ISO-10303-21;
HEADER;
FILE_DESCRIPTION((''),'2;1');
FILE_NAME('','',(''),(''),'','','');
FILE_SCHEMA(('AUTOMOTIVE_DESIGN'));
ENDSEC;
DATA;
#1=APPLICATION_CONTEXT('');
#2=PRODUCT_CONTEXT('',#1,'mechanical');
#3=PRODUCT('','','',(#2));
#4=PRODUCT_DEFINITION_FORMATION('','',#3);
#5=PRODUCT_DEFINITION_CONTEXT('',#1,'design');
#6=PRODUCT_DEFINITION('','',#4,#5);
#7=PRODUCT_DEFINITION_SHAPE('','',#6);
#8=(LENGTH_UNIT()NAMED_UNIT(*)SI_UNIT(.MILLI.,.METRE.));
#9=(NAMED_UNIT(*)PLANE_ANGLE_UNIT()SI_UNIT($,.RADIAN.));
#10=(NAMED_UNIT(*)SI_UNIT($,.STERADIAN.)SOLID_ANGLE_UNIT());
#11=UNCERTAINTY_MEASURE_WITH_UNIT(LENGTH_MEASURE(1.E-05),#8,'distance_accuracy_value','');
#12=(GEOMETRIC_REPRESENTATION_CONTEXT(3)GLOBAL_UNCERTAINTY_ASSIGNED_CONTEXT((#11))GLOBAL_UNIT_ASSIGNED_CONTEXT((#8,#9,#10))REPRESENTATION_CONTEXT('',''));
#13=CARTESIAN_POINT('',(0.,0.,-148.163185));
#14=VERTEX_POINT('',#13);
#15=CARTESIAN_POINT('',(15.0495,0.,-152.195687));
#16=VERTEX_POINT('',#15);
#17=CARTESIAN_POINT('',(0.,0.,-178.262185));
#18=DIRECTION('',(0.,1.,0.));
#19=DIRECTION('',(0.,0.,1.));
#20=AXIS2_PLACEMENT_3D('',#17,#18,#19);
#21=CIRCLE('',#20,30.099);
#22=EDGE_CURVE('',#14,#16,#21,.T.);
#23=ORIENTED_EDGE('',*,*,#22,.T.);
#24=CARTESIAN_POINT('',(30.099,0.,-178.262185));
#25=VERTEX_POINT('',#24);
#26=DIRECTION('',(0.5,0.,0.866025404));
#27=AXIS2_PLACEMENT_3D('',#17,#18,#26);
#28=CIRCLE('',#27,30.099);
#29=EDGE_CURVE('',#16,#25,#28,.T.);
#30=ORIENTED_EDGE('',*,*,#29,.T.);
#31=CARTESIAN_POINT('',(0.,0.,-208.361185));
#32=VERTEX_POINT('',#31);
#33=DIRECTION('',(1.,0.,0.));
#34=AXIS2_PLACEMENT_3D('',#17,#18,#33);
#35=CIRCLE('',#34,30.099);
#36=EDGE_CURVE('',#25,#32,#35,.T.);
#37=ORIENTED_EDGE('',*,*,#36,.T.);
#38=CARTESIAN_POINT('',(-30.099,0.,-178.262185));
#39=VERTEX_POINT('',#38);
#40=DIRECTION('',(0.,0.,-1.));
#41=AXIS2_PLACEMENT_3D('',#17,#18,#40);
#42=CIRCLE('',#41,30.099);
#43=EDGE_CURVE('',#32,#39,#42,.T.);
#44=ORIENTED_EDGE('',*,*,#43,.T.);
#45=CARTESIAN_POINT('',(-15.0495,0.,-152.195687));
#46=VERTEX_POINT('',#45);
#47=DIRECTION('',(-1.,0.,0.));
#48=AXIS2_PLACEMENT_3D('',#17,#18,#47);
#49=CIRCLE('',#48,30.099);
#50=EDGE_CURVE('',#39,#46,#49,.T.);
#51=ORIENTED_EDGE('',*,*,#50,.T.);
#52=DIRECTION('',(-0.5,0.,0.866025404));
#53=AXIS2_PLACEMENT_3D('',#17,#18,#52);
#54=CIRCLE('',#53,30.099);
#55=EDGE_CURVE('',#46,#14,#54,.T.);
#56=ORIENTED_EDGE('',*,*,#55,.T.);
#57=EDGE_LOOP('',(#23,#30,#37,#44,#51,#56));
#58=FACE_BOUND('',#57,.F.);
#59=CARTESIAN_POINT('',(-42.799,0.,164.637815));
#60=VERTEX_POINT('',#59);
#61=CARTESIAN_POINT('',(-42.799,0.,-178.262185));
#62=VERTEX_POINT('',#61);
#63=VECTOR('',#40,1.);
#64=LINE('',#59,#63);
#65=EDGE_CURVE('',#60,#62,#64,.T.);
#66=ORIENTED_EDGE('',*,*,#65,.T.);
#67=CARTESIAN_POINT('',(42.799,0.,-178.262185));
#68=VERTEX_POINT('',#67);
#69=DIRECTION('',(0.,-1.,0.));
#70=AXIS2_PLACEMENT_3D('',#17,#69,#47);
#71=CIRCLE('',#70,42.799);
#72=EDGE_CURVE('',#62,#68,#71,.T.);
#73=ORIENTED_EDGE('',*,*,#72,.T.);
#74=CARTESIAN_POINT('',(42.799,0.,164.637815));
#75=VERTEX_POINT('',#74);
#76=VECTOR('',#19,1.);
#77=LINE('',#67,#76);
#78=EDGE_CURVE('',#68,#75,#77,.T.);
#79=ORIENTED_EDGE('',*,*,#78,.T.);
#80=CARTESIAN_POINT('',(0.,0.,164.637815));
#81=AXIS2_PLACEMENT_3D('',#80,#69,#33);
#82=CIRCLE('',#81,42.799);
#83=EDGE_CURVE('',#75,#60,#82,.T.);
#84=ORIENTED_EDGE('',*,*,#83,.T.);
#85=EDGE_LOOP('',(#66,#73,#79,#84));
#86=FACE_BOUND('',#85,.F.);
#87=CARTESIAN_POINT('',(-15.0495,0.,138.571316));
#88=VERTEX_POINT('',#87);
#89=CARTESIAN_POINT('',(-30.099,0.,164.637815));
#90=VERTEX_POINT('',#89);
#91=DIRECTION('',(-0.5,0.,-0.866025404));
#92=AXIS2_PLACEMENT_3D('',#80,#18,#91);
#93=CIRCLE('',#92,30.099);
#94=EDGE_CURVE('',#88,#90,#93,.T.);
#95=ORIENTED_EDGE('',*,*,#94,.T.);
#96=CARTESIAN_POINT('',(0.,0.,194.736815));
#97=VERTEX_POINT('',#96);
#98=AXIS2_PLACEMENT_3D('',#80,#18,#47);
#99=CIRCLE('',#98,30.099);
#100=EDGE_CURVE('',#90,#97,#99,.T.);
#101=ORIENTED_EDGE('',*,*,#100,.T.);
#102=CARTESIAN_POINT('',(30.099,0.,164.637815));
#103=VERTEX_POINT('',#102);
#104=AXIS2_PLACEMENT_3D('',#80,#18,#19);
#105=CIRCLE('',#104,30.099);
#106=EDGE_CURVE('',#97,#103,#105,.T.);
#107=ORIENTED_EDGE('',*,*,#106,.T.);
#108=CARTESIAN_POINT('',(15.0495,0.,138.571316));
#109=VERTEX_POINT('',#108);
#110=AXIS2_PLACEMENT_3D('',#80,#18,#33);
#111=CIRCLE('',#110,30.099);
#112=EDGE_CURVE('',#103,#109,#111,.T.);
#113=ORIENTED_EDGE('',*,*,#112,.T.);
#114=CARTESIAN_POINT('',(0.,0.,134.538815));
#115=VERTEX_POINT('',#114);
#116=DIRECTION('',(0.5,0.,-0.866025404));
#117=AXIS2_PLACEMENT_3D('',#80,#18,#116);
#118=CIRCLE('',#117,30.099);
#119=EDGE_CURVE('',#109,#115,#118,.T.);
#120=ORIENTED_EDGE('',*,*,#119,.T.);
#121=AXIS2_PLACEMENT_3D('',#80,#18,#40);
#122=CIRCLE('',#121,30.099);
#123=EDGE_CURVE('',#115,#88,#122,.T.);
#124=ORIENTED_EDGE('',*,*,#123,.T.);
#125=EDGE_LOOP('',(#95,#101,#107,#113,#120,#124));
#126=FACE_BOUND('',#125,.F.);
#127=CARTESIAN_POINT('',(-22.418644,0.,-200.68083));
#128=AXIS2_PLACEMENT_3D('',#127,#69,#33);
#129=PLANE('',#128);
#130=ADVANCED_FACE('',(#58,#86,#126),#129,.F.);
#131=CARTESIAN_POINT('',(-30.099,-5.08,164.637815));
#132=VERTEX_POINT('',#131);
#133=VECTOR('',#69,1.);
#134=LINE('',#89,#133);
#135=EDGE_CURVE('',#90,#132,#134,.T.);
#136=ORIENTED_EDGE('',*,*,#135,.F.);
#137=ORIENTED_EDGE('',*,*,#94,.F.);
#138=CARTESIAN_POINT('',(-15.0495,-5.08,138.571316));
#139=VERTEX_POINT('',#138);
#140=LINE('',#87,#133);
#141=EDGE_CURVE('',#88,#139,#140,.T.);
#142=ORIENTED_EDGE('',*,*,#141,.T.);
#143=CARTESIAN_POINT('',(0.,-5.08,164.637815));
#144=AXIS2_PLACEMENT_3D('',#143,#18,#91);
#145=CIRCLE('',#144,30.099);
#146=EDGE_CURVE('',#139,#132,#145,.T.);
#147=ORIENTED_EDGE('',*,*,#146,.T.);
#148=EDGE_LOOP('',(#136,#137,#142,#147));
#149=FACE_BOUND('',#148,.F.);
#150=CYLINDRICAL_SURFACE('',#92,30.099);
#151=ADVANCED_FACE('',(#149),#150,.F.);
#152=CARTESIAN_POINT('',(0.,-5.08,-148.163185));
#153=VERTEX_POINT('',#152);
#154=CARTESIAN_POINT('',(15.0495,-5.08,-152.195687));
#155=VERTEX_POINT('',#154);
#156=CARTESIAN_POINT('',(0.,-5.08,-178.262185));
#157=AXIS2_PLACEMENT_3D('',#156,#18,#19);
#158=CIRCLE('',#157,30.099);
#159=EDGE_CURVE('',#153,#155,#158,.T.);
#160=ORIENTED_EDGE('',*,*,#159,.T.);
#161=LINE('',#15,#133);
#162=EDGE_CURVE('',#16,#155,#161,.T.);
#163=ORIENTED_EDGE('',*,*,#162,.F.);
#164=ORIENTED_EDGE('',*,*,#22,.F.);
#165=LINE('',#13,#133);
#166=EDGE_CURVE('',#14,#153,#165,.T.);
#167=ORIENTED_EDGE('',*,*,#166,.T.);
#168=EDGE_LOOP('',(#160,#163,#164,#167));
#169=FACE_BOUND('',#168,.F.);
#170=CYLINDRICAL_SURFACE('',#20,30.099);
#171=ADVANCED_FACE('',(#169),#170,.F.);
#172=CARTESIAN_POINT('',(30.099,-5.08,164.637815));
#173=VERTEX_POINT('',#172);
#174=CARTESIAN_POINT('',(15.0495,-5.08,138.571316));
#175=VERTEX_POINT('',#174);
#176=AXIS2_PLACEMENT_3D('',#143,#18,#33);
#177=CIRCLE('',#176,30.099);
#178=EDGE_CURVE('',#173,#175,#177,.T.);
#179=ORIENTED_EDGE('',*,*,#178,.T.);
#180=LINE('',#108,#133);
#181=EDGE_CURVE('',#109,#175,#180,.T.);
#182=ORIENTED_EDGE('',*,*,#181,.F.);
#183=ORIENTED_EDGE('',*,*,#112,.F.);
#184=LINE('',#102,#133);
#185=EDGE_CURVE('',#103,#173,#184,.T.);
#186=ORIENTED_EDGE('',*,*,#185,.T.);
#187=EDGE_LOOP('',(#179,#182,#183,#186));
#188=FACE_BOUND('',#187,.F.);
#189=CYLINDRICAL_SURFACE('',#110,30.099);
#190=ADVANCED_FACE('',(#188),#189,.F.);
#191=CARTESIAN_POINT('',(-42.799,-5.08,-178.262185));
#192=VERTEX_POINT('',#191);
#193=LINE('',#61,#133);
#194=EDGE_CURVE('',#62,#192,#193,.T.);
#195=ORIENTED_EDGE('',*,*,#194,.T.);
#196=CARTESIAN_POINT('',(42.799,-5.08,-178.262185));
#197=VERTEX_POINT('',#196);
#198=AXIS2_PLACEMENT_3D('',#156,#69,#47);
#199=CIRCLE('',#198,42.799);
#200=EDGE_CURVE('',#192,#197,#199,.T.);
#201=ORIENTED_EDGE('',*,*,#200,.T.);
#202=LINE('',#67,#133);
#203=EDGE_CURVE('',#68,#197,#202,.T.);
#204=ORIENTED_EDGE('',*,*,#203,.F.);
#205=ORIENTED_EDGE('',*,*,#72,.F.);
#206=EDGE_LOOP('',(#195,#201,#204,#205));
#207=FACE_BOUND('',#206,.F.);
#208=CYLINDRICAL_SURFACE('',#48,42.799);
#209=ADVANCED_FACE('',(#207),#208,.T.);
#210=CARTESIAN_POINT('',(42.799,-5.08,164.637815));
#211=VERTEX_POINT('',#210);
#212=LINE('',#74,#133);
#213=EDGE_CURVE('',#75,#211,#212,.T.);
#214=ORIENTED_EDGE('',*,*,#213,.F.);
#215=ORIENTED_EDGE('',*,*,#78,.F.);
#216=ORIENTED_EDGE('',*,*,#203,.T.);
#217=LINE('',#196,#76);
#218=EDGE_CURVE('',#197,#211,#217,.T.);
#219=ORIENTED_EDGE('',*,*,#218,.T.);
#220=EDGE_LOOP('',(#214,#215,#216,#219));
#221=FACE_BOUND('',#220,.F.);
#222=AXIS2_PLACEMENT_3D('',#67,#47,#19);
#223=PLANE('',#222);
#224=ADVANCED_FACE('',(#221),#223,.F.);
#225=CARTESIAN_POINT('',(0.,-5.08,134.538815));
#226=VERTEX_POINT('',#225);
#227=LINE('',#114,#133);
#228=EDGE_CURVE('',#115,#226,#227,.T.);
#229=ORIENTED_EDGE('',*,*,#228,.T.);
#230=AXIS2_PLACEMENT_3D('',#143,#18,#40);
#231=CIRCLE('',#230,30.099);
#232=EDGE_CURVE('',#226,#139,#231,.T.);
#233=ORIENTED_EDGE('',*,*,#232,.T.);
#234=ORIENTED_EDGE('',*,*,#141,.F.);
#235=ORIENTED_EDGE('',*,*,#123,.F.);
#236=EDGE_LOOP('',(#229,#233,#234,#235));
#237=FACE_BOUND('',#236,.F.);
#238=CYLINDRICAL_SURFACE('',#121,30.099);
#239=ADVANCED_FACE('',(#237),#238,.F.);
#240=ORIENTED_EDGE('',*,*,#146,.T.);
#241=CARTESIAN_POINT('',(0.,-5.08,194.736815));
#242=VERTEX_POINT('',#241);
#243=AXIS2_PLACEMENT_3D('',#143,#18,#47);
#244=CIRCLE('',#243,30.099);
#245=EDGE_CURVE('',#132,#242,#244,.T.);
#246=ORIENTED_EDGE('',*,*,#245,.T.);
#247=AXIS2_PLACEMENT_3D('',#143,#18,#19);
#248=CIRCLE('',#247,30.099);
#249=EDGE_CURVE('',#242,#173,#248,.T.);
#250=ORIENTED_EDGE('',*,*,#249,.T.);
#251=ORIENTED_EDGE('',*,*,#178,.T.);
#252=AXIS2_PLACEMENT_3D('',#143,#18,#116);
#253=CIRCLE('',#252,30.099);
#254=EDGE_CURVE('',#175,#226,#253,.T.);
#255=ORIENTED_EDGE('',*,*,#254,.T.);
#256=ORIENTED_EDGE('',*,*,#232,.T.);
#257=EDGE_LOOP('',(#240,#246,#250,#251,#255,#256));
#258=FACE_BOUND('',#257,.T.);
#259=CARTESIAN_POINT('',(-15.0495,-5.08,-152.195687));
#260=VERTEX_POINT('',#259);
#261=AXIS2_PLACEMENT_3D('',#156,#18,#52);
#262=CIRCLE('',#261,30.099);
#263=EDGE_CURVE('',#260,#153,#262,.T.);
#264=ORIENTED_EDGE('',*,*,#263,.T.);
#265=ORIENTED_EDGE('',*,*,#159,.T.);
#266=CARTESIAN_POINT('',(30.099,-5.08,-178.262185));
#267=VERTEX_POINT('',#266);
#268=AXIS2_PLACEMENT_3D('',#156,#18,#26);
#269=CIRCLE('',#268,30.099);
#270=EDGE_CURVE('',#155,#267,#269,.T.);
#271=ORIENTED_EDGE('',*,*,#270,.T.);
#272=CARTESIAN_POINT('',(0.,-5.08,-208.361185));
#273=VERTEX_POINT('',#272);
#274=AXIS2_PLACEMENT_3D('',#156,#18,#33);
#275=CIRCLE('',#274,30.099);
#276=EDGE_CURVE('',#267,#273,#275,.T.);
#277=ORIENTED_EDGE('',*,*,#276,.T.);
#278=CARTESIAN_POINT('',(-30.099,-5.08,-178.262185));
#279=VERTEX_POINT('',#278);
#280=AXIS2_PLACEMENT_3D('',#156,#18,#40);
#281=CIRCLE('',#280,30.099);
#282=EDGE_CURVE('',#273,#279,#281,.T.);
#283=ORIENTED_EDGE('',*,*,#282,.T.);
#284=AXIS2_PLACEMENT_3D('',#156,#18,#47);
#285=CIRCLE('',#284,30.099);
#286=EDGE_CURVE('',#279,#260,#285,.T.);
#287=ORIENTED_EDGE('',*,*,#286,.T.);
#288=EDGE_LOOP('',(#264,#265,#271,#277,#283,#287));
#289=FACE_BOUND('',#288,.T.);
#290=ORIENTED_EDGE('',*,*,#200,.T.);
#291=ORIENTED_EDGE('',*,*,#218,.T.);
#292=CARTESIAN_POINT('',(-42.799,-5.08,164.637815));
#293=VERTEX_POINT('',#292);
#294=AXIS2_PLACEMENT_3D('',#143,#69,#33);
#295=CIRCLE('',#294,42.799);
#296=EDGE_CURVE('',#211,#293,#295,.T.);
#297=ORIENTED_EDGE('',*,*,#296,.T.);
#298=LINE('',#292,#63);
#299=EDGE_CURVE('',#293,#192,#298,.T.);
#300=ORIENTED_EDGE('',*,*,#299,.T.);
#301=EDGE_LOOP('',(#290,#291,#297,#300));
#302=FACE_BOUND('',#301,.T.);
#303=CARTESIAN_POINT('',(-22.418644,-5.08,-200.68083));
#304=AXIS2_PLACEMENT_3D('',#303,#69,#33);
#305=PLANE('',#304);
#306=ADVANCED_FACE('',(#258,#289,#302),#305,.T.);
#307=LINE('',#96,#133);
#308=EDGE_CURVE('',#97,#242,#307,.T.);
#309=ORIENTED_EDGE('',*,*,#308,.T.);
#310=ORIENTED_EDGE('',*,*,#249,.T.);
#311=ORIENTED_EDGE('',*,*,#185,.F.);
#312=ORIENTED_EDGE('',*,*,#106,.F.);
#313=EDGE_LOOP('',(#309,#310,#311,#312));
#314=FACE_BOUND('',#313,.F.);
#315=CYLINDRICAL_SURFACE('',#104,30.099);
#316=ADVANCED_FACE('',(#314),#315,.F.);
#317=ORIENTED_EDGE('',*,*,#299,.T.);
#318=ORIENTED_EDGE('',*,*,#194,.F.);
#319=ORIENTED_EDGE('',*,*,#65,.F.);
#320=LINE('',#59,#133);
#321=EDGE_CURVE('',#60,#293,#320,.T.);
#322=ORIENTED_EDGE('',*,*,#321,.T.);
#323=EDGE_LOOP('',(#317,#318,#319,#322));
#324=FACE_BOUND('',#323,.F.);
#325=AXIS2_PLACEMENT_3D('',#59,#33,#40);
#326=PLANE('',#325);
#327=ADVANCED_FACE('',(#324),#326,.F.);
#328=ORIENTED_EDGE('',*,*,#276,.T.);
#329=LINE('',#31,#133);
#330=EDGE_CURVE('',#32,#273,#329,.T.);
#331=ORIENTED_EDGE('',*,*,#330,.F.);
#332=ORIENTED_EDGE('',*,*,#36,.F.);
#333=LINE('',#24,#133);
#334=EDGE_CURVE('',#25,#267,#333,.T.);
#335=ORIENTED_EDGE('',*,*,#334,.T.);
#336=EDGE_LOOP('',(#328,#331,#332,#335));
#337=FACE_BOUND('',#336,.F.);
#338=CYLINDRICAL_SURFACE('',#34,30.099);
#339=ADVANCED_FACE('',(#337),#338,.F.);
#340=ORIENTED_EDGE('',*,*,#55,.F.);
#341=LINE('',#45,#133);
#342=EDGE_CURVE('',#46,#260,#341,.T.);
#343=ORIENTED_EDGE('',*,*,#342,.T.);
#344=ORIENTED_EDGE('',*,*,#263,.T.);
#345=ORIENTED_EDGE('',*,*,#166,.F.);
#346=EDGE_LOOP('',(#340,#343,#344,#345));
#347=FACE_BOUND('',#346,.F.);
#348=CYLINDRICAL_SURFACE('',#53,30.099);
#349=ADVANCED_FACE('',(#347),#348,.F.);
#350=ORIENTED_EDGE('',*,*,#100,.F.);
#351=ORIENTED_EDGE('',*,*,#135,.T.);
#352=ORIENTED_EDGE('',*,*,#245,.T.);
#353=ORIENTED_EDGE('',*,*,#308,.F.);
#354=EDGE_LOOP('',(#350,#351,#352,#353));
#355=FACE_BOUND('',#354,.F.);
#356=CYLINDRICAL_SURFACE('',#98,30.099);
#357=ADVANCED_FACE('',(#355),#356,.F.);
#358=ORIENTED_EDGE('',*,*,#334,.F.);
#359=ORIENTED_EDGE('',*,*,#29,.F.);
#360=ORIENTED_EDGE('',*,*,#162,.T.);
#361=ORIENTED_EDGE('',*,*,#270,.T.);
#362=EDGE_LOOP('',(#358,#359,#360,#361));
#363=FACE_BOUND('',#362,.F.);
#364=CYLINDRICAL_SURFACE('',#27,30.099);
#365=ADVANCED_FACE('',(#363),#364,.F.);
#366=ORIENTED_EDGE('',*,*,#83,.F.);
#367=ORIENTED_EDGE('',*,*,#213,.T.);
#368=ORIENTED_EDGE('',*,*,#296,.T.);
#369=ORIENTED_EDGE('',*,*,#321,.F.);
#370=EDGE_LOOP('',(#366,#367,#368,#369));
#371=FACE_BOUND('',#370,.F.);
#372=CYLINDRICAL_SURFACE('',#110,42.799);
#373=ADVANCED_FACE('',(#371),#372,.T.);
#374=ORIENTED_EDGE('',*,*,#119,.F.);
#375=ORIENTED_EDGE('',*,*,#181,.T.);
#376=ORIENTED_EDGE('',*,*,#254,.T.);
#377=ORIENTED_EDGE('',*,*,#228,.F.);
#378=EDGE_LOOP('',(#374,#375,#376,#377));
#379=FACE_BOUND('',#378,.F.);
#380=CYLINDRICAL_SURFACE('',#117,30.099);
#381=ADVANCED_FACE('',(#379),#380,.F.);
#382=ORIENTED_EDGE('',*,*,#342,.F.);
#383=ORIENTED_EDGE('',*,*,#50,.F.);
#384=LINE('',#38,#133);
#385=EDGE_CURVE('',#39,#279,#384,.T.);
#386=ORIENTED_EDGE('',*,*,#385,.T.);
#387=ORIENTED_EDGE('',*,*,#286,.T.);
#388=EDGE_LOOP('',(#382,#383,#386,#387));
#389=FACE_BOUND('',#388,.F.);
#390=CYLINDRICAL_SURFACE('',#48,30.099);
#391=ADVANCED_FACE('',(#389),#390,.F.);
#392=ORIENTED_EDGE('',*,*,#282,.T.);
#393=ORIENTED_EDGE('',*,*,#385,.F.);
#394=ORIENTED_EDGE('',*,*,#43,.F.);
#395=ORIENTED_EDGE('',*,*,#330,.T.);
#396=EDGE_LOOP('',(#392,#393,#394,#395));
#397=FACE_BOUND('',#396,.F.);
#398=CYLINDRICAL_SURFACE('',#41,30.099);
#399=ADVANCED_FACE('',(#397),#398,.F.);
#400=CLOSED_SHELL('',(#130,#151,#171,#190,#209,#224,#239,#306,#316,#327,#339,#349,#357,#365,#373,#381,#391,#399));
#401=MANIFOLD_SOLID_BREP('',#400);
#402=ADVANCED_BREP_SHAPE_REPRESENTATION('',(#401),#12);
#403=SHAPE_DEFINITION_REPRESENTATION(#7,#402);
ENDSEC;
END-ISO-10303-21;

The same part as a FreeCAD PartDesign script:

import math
import FreeCAD as App
import Part
import Sketcher
Q = App.Units.Quantity

doc = App.newDocument("Part")
body = doc.addObject("PartDesign::Body", "Body")

sketch1 = body.newObject("Sketcher::SketchObject", "Sketch")
sketch1.AttachmentSupport = (doc.getObject("XZ_Plane"), [""])
sketch1.MapMode = "FlatFace"
sketch1.addGeometry([
    Part.ArcOfCircle(Part.Circle(App.Vector(0, -178, 0), App.Vector(0, 0, 1), 43), math.radians(180), math.radians(360)),
    Part.LineSegment(App.Vector(43, -178, 0), App.Vector(43, 165, 0)),
    Part.ArcOfCircle(Part.Circle(App.Vector(0, 165, 0), App.Vector(0, 0, 1), 43), math.radians(0), math.radians(180)),
    Part.LineSegment(App.Vector(-43, 165, 0), App.Vector(-43, -178, 0)),
    Part.ArcOfCircle(Part.Circle(App.Vector(0, -178, 0), App.Vector(0, 0, 1), 30), math.radians(90), math.radians(120)),
    Part.ArcOfCircle(Part.Circle(App.Vector(0, -178, 0), App.Vector(0, 0, 1), 30), math.radians(60), math.radians(90)),
    Part.ArcOfCircle(Part.Circle(App.Vector(0, -178, 0), App.Vector(0, 0, 1), 30), math.radians(0), math.radians(60)),
    Part.ArcOfCircle(Part.Circle(App.Vector(0, -178, 0), App.Vector(0, 0, 1), 30), math.radians(-90), math.radians(0)),
    Part.ArcOfCircle(Part.Circle(App.Vector(0, -178, 0), App.Vector(0, 0, 1), 30), math.radians(180), math.radians(270)),
    Part.ArcOfCircle(Part.Circle(App.Vector(0, -178, 0), App.Vector(0, 0, 1), 30), math.radians(120), math.radians(180)),
    Part.ArcOfCircle(Part.Circle(App.Vector(0, 165, 0), App.Vector(0, 0, 1), 30), math.radians(-60), math.radians(0)),
    Part.ArcOfCircle(Part.Circle(App.Vector(0, 165, 0), App.Vector(0, 0, 1), 30), math.radians(-90), math.radians(-60)),
    Part.ArcOfCircle(Part.Circle(App.Vector(0, 165, 0), App.Vector(0, 0, 1), 30), math.radians(-120), math.radians(-90)),
    Part.ArcOfCircle(Part.Circle(App.Vector(0, 165, 0), App.Vector(0, 0, 1), 30), math.radians(180), math.radians(240)),
    Part.ArcOfCircle(Part.Circle(App.Vector(0, 165, 0), App.Vector(0, 0, 1), 30), math.radians(90), math.radians(180)),
    Part.ArcOfCircle(Part.Circle(App.Vector(0, 165, 0), App.Vector(0, 0, 1), 30), math.radians(0), math.radians(90)),
], False)
sketch1.addConstraint([
    Sketcher.Constraint("Tangent", 0, 2, 1, 1),
    Sketcher.Constraint("Tangent", 1, 2, 2, 1),
    Sketcher.Constraint("Tangent", 2, 2, 3, 1),
    Sketcher.Constraint("Tangent", 3, 2, 0, 1),
    Sketcher.Constraint("Tangent", 4, 1, 5, 2),
    Sketcher.Constraint("Tangent", 5, 1, 6, 2),
    Sketcher.Constraint("Tangent", 6, 1, 7, 2),
    Sketcher.Constraint("Tangent", 7, 1, 8, 2),
    Sketcher.Constraint("Tangent", 8, 1, 9, 2),
    Sketcher.Constraint("Tangent", 9, 1, 4, 2),
    Sketcher.Constraint("Tangent", 10, 1, 11, 2),
    Sketcher.Constraint("Tangent", 11, 1, 12, 2),
    Sketcher.Constraint("Tangent", 12, 1, 13, 2),
    Sketcher.Constraint("Tangent", 13, 1, 14, 2),
    Sketcher.Constraint("Tangent", 14, 1, 15, 2),
    Sketcher.Constraint("Tangent", 15, 1, 10, 2),
    Sketcher.Constraint("Vertical", 1),
    Sketcher.Constraint("Vertical", 3),
    Sketcher.Constraint("Coincident", 4, 3, 0, 3),
    Sketcher.Constraint("Coincident", 6, 3, 0, 3),
    Sketcher.Constraint("Coincident", 10, 3, 2, 3),
    Sketcher.Constraint("Coincident", 12, 3, 2, 3),
    Sketcher.Constraint("Equal", 6, 7),
    Sketcher.Constraint("Equal", 9, 10),
    Sketcher.Constraint("Equal", 12, 13),
    Sketcher.Constraint("Symmetric", 6, 1, 8, 1, -2),
    Sketcher.Constraint("PointOnObject", 4, 1, -2),
    Sketcher.Constraint("PointOnObject", 7, 1, -2),
    Sketcher.Constraint("PointOnObject", 11, 1, -2),
    Sketcher.Constraint("PointOnObject", 14, 1, -2),
    Sketcher.Constraint("Horizontal", 3, 2, 6, 1),
    Sketcher.Constraint("Horizontal", 5, 1, 9, 1),
    Sketcher.Constraint("Horizontal", 10, 1, 12, 1),
    Sketcher.Constraint("Horizontal", 2, 2, 13, 1),
    Sketcher.Constraint("Horizontal", 13, 1, 15, 1),
    Sketcher.Constraint("Vertical", 5, 1, 10, 1),
    Sketcher.Constraint("DistanceY", 1, 1, 1, 2, Q("13.5 in")),
    Sketcher.Constraint("Radius", 0, Q("1.685 in")),
    Sketcher.Constraint("Radius", 4, Q("1.185 in")),
    Sketcher.Constraint("DistanceX", 9, 1, 5, 1, Q("1.185 in")),
    Sketcher.Constraint("DistanceY", 0, 3, -1, 1, 178.262185),
])
pad1 = body.newObject("PartDesign::Pad", "Pad")
pad1.Profile = sketch1
pad1.Length = Q("0.2 in")

doc.recompute()
